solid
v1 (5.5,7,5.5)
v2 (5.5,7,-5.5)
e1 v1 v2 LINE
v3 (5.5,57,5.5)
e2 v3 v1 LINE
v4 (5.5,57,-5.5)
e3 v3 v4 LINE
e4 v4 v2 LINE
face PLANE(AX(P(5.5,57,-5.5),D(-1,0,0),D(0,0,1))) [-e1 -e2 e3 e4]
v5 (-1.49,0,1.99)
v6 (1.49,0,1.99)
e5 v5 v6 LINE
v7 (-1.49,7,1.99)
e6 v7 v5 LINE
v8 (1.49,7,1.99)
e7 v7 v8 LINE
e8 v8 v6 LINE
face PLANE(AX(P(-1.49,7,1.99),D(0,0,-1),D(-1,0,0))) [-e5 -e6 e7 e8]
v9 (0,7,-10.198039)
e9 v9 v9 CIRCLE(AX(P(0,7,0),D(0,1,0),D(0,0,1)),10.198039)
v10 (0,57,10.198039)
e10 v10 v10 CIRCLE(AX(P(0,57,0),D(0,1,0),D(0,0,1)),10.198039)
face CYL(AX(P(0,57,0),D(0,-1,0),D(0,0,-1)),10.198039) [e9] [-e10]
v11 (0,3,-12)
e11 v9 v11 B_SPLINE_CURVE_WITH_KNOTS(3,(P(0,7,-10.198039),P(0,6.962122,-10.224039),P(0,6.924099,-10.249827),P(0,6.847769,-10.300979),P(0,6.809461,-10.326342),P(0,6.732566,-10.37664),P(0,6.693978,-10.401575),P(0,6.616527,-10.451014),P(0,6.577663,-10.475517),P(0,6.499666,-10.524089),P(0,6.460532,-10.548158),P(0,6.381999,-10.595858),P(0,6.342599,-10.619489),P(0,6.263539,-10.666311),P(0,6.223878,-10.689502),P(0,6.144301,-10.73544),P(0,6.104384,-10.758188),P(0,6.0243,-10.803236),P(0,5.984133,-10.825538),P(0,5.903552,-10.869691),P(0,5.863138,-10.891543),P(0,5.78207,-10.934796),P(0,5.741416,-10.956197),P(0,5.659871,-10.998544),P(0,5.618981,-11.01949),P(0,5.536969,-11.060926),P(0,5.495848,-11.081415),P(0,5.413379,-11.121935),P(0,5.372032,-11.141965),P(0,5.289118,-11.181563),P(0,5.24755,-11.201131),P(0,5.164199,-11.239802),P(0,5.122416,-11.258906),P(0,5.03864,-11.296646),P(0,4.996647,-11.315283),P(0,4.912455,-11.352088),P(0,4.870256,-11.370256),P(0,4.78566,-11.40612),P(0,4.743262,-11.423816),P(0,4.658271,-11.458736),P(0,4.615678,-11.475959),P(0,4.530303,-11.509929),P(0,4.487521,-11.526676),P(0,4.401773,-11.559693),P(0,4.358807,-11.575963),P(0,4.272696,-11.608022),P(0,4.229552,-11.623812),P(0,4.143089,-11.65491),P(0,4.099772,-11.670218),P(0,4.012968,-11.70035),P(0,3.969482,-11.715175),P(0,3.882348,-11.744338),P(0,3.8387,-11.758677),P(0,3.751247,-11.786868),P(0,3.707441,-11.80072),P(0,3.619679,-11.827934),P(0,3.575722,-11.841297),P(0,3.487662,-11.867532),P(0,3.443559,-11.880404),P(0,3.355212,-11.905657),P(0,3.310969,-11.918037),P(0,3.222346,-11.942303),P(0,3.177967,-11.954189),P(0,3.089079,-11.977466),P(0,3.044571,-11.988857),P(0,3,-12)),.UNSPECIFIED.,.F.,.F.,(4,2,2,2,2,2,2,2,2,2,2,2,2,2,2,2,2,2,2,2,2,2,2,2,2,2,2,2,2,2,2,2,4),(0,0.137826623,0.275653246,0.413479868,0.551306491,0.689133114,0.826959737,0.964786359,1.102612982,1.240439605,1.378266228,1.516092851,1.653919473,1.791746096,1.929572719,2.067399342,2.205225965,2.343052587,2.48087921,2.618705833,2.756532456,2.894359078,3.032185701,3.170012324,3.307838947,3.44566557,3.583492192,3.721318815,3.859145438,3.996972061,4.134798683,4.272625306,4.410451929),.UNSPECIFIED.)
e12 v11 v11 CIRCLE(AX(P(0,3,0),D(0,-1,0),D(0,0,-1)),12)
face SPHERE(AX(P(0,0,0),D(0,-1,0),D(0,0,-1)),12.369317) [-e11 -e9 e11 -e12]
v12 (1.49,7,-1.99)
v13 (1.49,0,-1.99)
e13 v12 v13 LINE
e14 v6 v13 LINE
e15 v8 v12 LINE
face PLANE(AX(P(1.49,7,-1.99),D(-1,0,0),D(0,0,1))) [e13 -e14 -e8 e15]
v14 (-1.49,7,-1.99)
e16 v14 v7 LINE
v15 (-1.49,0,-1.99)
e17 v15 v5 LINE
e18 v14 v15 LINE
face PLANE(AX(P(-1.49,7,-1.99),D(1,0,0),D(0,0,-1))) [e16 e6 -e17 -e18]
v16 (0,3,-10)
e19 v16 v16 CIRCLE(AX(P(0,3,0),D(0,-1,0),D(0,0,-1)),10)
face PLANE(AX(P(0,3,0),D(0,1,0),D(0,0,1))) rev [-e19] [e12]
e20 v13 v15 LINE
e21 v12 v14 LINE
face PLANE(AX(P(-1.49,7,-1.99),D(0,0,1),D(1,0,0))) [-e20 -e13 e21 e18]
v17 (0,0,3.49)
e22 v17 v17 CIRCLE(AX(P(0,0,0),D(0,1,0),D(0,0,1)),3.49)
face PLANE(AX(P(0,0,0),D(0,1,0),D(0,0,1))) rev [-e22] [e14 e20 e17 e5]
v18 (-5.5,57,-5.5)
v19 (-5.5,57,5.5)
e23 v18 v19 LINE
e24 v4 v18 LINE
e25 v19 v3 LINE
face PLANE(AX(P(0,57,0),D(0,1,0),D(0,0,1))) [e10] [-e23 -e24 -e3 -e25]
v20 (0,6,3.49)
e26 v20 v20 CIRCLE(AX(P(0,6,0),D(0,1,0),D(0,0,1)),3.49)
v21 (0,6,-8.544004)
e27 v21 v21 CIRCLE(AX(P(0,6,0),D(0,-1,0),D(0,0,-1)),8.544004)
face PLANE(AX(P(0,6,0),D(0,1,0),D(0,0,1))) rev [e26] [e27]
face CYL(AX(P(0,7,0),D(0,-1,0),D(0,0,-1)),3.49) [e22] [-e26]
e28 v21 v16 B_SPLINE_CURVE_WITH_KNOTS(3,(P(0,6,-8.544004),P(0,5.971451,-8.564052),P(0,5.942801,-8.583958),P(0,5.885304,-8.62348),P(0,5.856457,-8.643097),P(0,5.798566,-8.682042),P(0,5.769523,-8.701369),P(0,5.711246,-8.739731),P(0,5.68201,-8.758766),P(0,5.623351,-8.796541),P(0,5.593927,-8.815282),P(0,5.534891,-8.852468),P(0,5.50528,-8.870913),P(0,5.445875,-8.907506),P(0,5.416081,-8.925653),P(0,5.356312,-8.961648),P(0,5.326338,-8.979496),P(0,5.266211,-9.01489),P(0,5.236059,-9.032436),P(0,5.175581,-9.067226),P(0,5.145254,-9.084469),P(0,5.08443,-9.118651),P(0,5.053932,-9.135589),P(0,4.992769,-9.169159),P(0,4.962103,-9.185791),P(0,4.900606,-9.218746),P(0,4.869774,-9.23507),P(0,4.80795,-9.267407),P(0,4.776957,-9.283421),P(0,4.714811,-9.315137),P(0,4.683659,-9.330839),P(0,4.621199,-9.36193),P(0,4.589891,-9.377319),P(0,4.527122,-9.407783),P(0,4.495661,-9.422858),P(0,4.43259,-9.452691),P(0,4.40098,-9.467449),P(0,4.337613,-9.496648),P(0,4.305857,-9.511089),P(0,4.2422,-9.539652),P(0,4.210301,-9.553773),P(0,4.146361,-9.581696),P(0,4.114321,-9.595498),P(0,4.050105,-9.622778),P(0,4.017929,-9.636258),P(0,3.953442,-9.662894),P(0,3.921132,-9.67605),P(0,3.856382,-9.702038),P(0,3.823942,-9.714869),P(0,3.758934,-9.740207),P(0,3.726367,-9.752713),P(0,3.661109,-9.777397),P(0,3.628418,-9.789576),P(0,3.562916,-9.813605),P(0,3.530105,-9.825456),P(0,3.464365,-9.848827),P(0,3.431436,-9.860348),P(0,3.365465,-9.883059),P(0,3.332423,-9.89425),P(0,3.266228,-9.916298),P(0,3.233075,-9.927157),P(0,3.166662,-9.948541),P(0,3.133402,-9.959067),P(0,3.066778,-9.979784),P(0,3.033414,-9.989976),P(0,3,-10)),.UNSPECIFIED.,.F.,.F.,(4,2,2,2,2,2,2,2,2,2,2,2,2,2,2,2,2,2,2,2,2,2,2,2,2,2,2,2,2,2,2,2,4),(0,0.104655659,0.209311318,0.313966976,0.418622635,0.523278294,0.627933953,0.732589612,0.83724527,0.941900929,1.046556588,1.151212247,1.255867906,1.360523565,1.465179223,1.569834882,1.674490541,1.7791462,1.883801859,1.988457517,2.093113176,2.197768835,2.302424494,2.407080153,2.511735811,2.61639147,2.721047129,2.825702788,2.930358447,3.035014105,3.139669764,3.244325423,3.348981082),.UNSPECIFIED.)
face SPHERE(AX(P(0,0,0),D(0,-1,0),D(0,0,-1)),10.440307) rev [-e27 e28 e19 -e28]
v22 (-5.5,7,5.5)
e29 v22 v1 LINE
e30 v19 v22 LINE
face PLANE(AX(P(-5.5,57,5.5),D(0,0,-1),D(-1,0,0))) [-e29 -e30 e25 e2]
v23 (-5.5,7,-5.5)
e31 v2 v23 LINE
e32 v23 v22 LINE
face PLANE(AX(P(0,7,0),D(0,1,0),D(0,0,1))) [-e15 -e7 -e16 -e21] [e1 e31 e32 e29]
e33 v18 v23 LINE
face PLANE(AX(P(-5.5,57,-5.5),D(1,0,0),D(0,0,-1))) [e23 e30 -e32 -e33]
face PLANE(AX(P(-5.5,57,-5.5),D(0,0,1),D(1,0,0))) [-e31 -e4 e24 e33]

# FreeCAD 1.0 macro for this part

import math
import FreeCAD as App
import Part
import Sketcher

doc = App.newDocument("Part")
body = doc.addObject("PartDesign::Body", "Body")

sketch1 = doc.addObject("Sketcher::SketchObject", "Sketch")
body.addObject(sketch1)
sketch1.AttachmentSupport = (doc.XZ_Plane, [""])
sketch1.MapMode = "FlatFace"
sketch1.addGeometry([
    Part.Circle(App.Vector(0, 0, 0), App.Vector(0, 0, 1), 3.5),
    Part.LineSegment(App.Vector(1.5, 2, 0), App.Vector(-1.5, 2, 0)),
    Part.LineSegment(App.Vector(-1.5, 2, 0), App.Vector(-1.5, -2, 0)),
    Part.LineSegment(App.Vector(-1.5, -2, 0), App.Vector(1.5, -2, 0)),
    Part.LineSegment(App.Vector(1.5, -2, 0), App.Vector(1.5, 2, 0)),
], False)
sketch1.addConstraint([
    Sketcher.Constraint("Coincident", 1, 2, 2, 1),
    Sketcher.Constraint("Coincident", 2, 2, 3, 1),
    Sketcher.Constraint("Coincident", 3, 2, 4, 1),
    Sketcher.Constraint("Coincident", 4, 2, 1, 1),
    Sketcher.Constraint("Horizontal", 1),
    Sketcher.Constraint("Vertical", 2),
    Sketcher.Constraint("Horizontal", 3),
    Sketcher.Constraint("Vertical", 4),
    Sketcher.Constraint("Coincident", 0, 3, -1, 1),
    Sketcher.Constraint("Symmetric", 1, 2, 3, 2, -1, 1),
    Sketcher.Constraint("Diameter", 0, 6.98),
    Sketcher.Constraint("DistanceX", 1, 2, 1, 1, 2.98),
    Sketcher.Constraint("DistanceY", 2, 2, 2, 1, 3.98),
])
pad1 = doc.addObject("PartDesign::Pad", "Pad")
body.addObject(pad1)
pad1.Profile = sketch1
pad1.Length = 7
pad1.Reversed = True

sketch2 = doc.addObject("Sketcher::SketchObject", "Sketch001")
body.addObject(sketch2)
sketch2.AttachmentSupport = (doc.YZ_Plane, [""])
sketch2.MapMode = "FlatFace"
sketch2.addGeometry([
    Part.LineSegment(App.Vector(3, -10, 0), App.Vector(3, -12, 0)),
    Part.ArcOfCircle(Part.Circle(App.Vector(0, 0, 0), App.Vector(0, 0, 1), 12.4), math.radians(-76), math.radians(-56)),
    Part.LineSegment(App.Vector(7, -10.2, 0), App.Vector(7, -3.5, 0)),
    Part.LineSegment(App.Vector(7, -3.5, 0), App.Vector(6, -3.5, 0)),
    Part.LineSegment(App.Vector(6, -3.5, 0), App.Vector(6, -8.5, 0)),
    Part.ArcOfCircle(Part.Circle(App.Vector(0, 0, 0), App.Vector(0, 0, 1), 10.4), math.radians(-73.3), math.radians(-54.92)),
], False)
sketch2.addConstraint([
    Sketcher.Constraint("Coincident", 0, 2, 1, 1),
    Sketcher.Constraint("Coincident", 1, 2, 2, 1),
    Sketcher.Constraint("Coincident", 2, 2, 3, 1),
    Sketcher.Constraint("Coincident", 3, 2, 4, 1),
    Sketcher.Constraint("Coincident", 4, 2, 5, 2),
    Sketcher.Constraint("Coincident", 5, 1, 0, 1),
    Sketcher.Constraint("Vertical", 0),
    Sketcher.Constraint("Vertical", 2),
    Sketcher.Constraint("Horizontal", 3),
    Sketcher.Constraint("Vertical", 4),
    Sketcher.Constraint("Coincident", 1, 3, -1, 1),
    Sketcher.Constraint("Coincident", 5, 3, -1, 1),
    Sketcher.Constraint("DistanceX", 3, 2, 3, 1, 1.0),
    Sketcher.Constraint("DistanceY", 0, 2, 0, 1, 2.0),
    Sketcher.Constraint("DistanceX", -1, 1, 0, 2, 3.0),
    Sketcher.Constraint("DistanceY", 0, 2, -1, 1, 12.0),
    Sketcher.Constraint("DistanceX", -1, 1, 1, 2, 7.0),
    Sketcher.Constraint("DistanceY", 2, 2, -1, 1, 3.49),
])
revolution = doc.addObject("PartDesign::Revolution", "Revolution")
body.addObject(revolution)
revolution.Profile = sketch2
revolution.ReferenceAxis = (sketch2, ["H_Axis"])
revolution.Angle = 360

sketch3 = doc.addObject("Sketcher::SketchObject", "Sketch002")
body.addObject(sketch3)
sketch3.AttachmentSupport = (doc.XZ_Plane, [""])
sketch3.MapMode = "FlatFace"
sketch3.AttachmentOffset = App.Placement(App.Vector(0, 0, -7), App.Rotation())
sketch3.addGeometry([
    Part.Circle(App.Vector(0, 0, 0), App.Vector(0, 0, 1), 10),
    Part.LineSegment(App.Vector(6, 6, 0), App.Vector(-6, 6, 0)),
    Part.LineSegment(App.Vector(-6, 6, 0), App.Vector(-6, -6, 0)),
    Part.LineSegment(App.Vector(-6, -6, 0), App.Vector(6, -6, 0)),
    Part.LineSegment(App.Vector(6, -6, 0), App.Vector(6, 6, 0)),
], False)
sketch3.addConstraint([
    Sketcher.Constraint("Coincident", 1, 2, 2, 1),
    Sketcher.Constraint("Coincident", 2, 2, 3, 1),
    Sketcher.Constraint("Coincident", 3, 2, 4, 1),
    Sketcher.Constraint("Coincident", 4, 2, 1, 1),
    Sketcher.Constraint("Horizontal", 1),
    Sketcher.Constraint("Vertical", 2),
    Sketcher.Constraint("Horizontal", 3),
    Sketcher.Constraint("Vertical", 4),
    Sketcher.Constraint("Coincident", 0, 3, -1, 1),
    Sketcher.Constraint("Symmetric", 1, 2, 3, 2, -1, 1),
    Sketcher.Constraint("Equal", 3, 2),
    Sketcher.Constraint("DistanceX", 1, 2, 1, 1, 11.0),
    Sketcher.Constraint("Diameter", 0, 20.396078),
])
pad2 = doc.addObject("PartDesign::Pad", "Pad001")
body.addObject(pad2)
pad2.Profile = sketch3
pad2.Length = 50
pad2.Reversed = True

doc.recompute()
